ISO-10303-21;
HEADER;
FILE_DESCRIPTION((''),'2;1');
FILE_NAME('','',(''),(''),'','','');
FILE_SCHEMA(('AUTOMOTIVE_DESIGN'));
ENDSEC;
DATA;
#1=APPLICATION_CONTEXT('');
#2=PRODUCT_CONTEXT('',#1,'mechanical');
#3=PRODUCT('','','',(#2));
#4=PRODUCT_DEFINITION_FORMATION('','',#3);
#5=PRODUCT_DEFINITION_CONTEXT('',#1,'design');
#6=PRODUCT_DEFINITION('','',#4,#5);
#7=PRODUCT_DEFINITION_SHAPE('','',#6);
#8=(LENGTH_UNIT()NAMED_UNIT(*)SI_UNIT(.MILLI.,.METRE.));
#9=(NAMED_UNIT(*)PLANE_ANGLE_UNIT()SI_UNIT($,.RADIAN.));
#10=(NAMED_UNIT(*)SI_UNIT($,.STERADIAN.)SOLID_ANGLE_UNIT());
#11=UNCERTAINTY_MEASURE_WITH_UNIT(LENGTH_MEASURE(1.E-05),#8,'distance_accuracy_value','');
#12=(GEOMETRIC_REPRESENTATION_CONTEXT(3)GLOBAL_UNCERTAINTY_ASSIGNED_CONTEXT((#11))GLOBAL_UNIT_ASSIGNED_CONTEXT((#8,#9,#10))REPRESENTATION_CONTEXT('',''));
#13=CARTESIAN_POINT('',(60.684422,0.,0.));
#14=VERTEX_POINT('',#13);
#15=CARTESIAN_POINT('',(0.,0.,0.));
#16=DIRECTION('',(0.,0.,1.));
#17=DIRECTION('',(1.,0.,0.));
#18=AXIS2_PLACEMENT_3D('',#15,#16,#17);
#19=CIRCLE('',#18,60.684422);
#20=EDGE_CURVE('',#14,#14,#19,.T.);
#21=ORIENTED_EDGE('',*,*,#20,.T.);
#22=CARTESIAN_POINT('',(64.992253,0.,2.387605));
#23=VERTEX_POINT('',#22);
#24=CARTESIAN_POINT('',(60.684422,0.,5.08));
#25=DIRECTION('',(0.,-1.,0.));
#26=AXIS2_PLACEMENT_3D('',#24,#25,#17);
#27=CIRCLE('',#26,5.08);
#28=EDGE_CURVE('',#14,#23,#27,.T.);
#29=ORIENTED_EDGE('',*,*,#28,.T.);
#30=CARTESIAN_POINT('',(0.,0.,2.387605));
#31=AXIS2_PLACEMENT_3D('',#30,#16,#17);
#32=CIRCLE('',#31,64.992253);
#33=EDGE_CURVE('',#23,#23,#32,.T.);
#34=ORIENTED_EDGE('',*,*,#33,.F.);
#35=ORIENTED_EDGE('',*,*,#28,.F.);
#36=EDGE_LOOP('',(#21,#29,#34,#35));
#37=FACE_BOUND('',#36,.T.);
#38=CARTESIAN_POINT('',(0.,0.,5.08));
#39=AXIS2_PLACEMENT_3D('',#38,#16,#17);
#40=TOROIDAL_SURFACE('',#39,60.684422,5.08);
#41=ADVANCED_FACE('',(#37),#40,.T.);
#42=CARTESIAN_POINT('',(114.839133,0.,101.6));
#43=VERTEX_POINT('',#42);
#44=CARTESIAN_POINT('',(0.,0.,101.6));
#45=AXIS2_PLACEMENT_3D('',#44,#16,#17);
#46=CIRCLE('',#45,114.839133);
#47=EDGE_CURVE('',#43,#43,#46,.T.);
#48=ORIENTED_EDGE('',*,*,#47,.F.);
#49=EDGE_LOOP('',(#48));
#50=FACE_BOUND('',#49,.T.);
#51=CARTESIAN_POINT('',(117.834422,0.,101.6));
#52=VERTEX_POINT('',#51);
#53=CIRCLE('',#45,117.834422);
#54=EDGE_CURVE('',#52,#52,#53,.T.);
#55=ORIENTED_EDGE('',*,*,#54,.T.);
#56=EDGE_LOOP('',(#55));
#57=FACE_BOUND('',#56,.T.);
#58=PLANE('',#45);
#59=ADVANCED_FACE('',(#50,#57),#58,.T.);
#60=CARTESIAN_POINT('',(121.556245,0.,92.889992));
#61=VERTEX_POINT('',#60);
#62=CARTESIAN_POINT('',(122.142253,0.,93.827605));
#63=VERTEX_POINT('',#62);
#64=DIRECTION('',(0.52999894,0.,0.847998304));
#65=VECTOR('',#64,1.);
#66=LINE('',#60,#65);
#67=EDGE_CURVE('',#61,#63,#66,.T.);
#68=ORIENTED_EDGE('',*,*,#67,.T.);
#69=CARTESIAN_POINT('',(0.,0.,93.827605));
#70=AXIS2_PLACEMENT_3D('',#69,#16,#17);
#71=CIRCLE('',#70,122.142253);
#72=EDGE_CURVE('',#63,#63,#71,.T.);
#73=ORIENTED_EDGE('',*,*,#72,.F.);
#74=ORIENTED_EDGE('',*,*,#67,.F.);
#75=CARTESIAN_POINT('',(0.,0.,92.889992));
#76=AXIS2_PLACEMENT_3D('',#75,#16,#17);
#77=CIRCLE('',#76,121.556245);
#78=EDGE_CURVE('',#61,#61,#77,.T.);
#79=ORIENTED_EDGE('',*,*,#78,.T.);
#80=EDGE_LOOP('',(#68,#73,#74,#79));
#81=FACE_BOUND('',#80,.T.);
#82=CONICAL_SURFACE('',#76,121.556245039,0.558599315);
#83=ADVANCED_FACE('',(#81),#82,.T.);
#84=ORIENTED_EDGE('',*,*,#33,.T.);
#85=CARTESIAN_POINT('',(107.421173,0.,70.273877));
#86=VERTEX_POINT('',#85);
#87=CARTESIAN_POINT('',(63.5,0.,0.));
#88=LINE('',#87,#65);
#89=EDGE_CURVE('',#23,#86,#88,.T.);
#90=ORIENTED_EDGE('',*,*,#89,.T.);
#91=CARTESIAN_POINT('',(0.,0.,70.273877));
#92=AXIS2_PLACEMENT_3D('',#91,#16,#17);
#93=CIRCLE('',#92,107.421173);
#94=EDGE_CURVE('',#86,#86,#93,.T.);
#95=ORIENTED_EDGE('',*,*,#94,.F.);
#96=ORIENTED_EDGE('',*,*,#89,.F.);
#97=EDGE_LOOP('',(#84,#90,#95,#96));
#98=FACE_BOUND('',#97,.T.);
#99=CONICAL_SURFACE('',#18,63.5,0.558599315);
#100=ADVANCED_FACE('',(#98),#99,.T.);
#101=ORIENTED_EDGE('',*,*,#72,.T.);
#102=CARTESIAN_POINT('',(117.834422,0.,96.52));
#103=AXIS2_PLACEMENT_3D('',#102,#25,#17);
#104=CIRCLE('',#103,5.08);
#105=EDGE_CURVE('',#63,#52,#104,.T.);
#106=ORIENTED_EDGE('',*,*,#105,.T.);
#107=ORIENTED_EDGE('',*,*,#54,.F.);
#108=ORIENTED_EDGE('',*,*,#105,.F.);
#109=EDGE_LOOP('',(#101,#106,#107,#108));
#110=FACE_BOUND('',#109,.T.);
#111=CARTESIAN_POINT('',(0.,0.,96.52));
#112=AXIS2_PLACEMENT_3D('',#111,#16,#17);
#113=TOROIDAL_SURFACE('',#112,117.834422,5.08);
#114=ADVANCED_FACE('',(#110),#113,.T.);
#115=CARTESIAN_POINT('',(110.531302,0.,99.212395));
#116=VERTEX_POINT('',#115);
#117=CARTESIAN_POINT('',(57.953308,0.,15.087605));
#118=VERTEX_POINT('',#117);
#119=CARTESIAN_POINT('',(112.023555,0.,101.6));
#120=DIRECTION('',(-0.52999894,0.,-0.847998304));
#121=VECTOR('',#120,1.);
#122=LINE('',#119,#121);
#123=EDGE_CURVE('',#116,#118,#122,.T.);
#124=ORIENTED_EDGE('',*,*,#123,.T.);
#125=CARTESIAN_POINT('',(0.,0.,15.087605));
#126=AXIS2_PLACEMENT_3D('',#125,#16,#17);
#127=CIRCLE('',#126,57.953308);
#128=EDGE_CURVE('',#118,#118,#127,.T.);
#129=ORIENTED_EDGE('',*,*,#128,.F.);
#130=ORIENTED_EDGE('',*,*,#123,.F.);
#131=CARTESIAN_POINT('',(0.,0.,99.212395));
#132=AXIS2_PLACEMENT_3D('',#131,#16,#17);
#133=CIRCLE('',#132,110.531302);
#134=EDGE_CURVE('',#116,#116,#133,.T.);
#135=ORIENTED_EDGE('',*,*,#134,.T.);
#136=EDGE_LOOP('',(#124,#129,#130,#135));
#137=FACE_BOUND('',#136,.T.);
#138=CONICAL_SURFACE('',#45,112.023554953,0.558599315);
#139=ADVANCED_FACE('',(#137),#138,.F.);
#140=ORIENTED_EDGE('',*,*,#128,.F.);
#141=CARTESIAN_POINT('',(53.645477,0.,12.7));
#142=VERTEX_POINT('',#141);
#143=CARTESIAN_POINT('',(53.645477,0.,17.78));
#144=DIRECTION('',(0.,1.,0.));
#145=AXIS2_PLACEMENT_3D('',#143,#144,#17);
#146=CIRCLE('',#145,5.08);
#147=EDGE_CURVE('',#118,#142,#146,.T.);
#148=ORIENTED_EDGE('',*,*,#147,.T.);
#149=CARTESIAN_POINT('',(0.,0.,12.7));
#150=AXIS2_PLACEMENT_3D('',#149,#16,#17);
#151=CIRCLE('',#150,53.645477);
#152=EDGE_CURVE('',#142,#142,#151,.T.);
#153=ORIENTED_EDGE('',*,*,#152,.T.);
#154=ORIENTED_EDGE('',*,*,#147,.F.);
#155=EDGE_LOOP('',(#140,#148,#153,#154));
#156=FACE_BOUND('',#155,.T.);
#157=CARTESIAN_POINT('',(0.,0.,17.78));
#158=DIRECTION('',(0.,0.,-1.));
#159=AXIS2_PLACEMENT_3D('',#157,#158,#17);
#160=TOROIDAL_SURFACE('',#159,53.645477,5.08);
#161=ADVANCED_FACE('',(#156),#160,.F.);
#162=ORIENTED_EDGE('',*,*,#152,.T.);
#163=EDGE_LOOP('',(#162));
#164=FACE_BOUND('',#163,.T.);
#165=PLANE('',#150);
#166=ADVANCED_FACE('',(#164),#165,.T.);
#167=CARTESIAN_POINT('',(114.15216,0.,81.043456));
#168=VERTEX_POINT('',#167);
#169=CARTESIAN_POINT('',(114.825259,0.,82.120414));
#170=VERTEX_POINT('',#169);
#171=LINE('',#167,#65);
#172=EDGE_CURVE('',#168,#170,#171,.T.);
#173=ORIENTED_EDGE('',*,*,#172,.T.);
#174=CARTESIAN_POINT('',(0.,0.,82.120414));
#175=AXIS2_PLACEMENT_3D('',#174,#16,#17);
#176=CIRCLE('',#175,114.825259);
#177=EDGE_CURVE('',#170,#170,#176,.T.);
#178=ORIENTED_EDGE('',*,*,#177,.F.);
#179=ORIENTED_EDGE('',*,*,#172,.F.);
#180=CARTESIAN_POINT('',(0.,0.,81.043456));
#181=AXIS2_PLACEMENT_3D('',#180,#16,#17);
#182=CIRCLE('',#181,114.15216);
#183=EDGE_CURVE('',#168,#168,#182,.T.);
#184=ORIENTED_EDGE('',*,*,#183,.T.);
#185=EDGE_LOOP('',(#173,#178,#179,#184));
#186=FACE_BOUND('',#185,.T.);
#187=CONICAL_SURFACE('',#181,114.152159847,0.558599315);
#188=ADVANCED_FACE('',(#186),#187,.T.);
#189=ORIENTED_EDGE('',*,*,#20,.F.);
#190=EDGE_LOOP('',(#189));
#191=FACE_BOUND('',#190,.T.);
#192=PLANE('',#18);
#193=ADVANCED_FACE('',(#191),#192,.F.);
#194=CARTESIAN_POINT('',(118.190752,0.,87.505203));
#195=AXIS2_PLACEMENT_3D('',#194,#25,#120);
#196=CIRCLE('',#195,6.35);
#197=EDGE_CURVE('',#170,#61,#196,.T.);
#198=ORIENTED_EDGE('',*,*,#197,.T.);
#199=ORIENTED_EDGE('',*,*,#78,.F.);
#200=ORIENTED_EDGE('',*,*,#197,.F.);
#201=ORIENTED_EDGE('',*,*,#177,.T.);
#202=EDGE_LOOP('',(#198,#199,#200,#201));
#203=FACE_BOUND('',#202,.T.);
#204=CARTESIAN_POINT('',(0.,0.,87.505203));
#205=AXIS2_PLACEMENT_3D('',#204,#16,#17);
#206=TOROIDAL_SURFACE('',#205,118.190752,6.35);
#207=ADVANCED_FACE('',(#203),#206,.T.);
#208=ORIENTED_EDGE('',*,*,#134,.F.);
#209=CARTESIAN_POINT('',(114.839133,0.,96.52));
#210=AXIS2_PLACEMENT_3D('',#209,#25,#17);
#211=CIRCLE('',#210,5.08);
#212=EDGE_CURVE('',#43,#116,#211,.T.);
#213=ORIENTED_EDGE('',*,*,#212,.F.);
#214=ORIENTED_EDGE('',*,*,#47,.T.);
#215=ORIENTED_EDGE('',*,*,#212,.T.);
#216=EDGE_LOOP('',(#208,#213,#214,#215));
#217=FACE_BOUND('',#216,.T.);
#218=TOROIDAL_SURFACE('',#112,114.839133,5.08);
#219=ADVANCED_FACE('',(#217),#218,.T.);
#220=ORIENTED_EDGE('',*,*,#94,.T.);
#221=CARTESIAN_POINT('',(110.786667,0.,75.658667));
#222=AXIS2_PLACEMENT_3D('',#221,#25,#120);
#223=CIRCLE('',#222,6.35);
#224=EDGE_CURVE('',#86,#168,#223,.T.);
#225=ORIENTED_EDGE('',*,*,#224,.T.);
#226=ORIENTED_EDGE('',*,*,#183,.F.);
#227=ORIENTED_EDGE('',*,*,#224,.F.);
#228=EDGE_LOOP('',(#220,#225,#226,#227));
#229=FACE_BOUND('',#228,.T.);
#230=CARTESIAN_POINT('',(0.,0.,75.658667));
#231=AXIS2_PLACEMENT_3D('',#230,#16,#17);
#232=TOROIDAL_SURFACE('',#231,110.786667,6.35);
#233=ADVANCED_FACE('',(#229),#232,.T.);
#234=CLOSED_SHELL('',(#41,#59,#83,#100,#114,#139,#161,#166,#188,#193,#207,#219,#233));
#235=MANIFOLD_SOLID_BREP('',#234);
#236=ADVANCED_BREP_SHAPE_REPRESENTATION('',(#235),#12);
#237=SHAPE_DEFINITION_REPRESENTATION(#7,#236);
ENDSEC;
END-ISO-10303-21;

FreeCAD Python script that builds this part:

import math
import FreeCAD as App
import Part
import Sketcher
from FreeCAD import Vector
Q = App.Units.Quantity


def edges_at(feature, points):
    """Names of the edges that pass closest to the given points."""
    edges = feature.Shape.Edges
    near = lambda p: min(range(len(edges)), key=lambda i: edges[i].distToShape(Part.Vertex(*p))[0])
    return sorted({f"Edge{near(p) + 1}" for p in points})

doc = App.newDocument("Part")
body = doc.addObject("PartDesign::Body", "Body")

sketch1 = body.newObject("Sketcher::SketchObject", "Sketch")
sketch1.AttachmentSupport = (doc.getObject("XZ_Plane"), [""])
sketch1.MapMode = "FlatFace"
sketch1.addGeometry([
    Part.LineSegment(Vector(0, 12.7, 0), Vector(0, 0, 0)),
    Part.LineSegment(Vector(0, 0, 0), Vector(63.5, 0, 0)),
    Part.LineSegment(Vector(63.5, 0, 0), Vector(107.4, 70.3, 0)),
    Part.ArcOfCircle(Part.Circle(Vector(110.8, 75.7, 0), Vector(0, 0, 1), 6.3), math.radians(-122), math.radians(58)),
    Part.LineSegment(Vector(114.2, 81, 0), Vector(114.8, 82.1, 0)),
    Part.ArcOfCircle(Part.Circle(Vector(118.2, 87.5, 0), Vector(0, 0, 1), 6.3), math.radians(-122), math.radians(58)),
    Part.LineSegment(Vector(121.6, 92.9, 0), Vector(127, 101.6, 0)),
    Part.LineSegment(Vector(127, 101.6, 0), Vector(112, 101.6, 0)),
    Part.LineSegment(Vector(112, 101.6, 0), Vector(56.5, 12.7, 0)),
    Part.LineSegment(Vector(56.5, 12.7, 0), Vector(0, 12.7, 0)),
], False)
sketch1.addConstraint([
    Sketcher.Constraint("Coincident", 0, 2, 1, 1),
    Sketcher.Constraint("Coincident", 1, 2, 2, 1),
    Sketcher.Constraint("Coincident", 2, 2, 3, 1),
    Sketcher.Constraint("Coincident", 3, 2, 4, 1),
    Sketcher.Constraint("Coincident", 4, 2, 5, 1),
    Sketcher.Constraint("Coincident", 5, 2, 6, 1),
    Sketcher.Constraint("Coincident", 6, 2, 7, 1),
    Sketcher.Constraint("Coincident", 7, 2, 8, 1),
    Sketcher.Constraint("Coincident", 8, 2, 9, 1),
    Sketcher.Constraint("Coincident", 9, 2, 0, 1),
    Sketcher.Constraint("Vertical", 0),
    Sketcher.Constraint("Horizontal", 1),
    Sketcher.Constraint("Horizontal", 7),
    Sketcher.Constraint("Horizontal", 9),
    Sketcher.Constraint("Coincident", 0, 2, -1, 1),
    Sketcher.Constraint("Equal", 3, 5),
    Sketcher.Constraint("Parallel", 2, 4),
    Sketcher.Constraint("Parallel", 4, 6),
    Sketcher.Constraint("Parallel", 6, 8),
    Sketcher.Constraint("Radius", 3, Q("0.25 in")),
    Sketcher.Constraint("DistanceX", 1, 1, 1, 2, Q("2.5 in")),
    Sketcher.Constraint("DistanceY", 0, 2, 0, 1, Q("0.5 in")),
    Sketcher.Constraint("DistanceX", -1, 1, 6, 2, Q("5 in")),
    Sketcher.Constraint("DistanceY", -1, 1, 6, 2, Q("4 in")),
    Sketcher.Constraint("Distance", 4, Q("0.05 in")),
    Sketcher.Constraint("DistanceX", 7, 2, 7, 1, 14.976445),
    Sketcher.Constraint("DistanceX", 9, 2, 9, 1, 56.461055),
    Sketcher.Constraint("DistanceX", -1, 1, 5, 3, 118.190752),
    Sketcher.Constraint("DistanceX", -1, 1, 3, 2, 114.15216),
    Sketcher.Constraint("DistanceY", 2, 2, 3, 3, 5.384789),
    Sketcher.Constraint("DistanceX", 2, 2, 5, 3, 10.769578),
])
revolution = body.newObject("PartDesign::Revolution", "Revolution")
revolution.Profile = sketch1
revolution.ReferenceAxis = (sketch1, ["V_Axis"])
revolution.Angle = 360
doc.recompute()

fillet = body.newObject("PartDesign::Fillet", "Fillet")
fillet.Base = (revolution, edges_at(revolution, [
    (-56.461, 0, 12.7),
    (-112.024, 0, 101.6),
    (-127, 0, 101.6),
    (-63.5, 0, 0),
]))
fillet.Radius = Q("0.2 in")

doc.recompute()
